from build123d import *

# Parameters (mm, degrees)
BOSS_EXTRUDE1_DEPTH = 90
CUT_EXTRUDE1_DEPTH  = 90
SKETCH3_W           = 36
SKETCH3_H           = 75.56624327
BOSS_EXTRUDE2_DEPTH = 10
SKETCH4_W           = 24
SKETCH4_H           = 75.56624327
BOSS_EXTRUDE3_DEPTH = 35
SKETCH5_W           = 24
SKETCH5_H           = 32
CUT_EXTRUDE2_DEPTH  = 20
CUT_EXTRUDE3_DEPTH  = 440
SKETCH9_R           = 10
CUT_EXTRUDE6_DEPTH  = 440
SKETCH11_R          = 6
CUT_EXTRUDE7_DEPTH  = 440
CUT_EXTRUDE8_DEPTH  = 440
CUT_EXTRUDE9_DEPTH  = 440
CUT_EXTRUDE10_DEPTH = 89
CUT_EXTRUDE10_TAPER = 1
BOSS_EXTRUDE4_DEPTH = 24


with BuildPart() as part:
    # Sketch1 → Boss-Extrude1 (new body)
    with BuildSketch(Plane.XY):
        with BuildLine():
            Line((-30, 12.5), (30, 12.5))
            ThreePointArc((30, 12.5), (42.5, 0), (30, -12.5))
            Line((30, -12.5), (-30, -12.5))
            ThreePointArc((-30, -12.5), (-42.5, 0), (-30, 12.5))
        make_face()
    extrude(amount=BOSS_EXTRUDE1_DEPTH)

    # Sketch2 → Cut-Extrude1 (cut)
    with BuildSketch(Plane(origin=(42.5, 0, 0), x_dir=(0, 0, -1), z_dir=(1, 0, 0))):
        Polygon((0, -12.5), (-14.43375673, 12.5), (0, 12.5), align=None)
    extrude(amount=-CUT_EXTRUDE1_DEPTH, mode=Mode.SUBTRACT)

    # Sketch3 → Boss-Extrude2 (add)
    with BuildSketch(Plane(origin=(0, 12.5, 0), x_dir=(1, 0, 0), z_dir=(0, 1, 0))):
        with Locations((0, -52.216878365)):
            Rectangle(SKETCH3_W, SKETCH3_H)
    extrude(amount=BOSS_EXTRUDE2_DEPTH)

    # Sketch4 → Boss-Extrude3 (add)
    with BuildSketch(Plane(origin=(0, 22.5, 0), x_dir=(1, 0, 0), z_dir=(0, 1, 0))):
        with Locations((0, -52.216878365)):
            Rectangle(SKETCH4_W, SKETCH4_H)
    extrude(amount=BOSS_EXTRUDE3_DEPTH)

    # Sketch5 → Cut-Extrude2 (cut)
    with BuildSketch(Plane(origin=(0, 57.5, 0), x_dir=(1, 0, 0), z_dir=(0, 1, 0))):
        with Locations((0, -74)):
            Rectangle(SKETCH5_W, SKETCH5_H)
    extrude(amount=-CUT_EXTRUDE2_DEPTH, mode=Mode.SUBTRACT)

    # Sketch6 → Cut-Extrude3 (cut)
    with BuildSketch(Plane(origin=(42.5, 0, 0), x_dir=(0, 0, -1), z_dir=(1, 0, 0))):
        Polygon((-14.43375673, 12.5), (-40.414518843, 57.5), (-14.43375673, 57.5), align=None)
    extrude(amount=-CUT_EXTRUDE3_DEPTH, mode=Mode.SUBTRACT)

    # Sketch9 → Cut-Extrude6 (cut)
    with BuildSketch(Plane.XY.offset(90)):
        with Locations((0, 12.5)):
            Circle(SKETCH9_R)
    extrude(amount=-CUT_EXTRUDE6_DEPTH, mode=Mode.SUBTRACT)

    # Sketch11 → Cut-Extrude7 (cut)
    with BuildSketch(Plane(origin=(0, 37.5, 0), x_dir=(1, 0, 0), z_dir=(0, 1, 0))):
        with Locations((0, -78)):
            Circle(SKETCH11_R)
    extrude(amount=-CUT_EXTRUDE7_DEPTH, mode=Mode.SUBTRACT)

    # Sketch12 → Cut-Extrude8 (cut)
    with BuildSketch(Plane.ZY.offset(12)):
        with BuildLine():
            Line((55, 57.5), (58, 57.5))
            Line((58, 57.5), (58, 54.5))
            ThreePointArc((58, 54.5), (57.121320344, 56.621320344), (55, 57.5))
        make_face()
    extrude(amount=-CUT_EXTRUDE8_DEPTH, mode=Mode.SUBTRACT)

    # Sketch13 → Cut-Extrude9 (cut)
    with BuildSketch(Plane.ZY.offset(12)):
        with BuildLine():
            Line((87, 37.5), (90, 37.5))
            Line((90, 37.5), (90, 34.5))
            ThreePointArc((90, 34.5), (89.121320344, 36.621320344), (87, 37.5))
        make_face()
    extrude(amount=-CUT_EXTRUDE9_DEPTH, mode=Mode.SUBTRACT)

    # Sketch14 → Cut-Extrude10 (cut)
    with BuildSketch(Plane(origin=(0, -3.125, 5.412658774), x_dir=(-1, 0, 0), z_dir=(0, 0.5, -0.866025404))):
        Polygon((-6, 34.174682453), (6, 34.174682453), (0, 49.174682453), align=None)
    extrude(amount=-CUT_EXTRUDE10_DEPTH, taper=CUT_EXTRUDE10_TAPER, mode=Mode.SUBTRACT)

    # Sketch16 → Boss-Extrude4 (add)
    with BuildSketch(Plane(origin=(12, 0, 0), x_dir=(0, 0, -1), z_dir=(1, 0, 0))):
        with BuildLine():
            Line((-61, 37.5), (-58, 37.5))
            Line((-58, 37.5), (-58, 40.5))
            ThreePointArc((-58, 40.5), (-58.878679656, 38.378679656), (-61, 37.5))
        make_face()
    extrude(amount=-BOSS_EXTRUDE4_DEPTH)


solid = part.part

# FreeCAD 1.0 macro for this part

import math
import FreeCAD as App
import Part
import Sketcher
Q = App.Units.Quantity

doc = App.newDocument("Part")
body = doc.addObject("PartDesign::Body", "Body")

sketch1 = body.newObject("Sketcher::SketchObject", "Sketch")
sketch1.AttachmentSupport = (doc.getObject("XY_Plane"), [""])
sketch1.MapMode = "FlatFace"
sketch1.addGeometry(Part.LineSegment(App.Vector(30, 12, 0), App.Vector(-30, 12, 0)), False)
sketch1.addGeometry(Part.ArcOfCircle(Part.Circle(App.Vector(-30, 0, 0), App.Vector(0, 0, 1), 12), math.radians(90), math.radians(270)), False)
sketch1.addGeometry(Part.LineSegment(App.Vector(-30, -12, 0), App.Vector(30, -12, 0)), False)
sketch1.addGeometry(Part.ArcOfCircle(Part.Circle(App.Vector(30, 0, 0), App.Vector(0, 0, 1), 12), math.radians(-90), math.radians(90)), False)
sketch1.addConstraint(Sketcher.Constraint("Tangent", 0, 2, 1, 1))
sketch1.addConstraint(Sketcher.Constraint("Tangent", 1, 2, 2, 1))
sketch1.addConstraint(Sketcher.Constraint("Tangent", 2, 2, 3, 1))
sketch1.addConstraint(Sketcher.Constraint("Tangent", 3, 2, 0, 1))
sketch1.addConstraint(Sketcher.Constraint("Horizontal", 0))
sketch1.addConstraint(Sketcher.Constraint("Horizontal", 2))
sketch1.addConstraint(Sketcher.Constraint("Symmetric", 1, 3, 3, 3, -1, 1))
sketch1.addConstraint(Sketcher.Constraint("Radius", 1, Q("12.5 mm")))
sketch1.addConstraint(Sketcher.Constraint("DistanceX", 0, 2, 0, 1, Q("60 mm")))
pad1 = body.newObject("PartDesign::Pad", "Pad")
pad1.Profile = sketch1
pad1.Length = 90

sketch2 = body.newObject("Sketcher::SketchObject", "Sketch001")
sketch2.AttachmentSupport = (doc.getObject("YZ_Plane"), [""])
sketch2.MapMode = "FlatFace"
sketch2.AttachmentOffset = App.Placement(App.Vector(0, 0, 42.5), App.Rotation())
sketch2.addGeometry(Part.LineSegment(App.Vector(12, 14, 0), App.Vector(-12, 0, 0)), False)
sketch2.addGeometry(Part.LineSegment(App.Vector(-12, 0, 0), App.Vector(12, 0, 0)), False)
sketch2.addGeometry(Part.LineSegment(App.Vector(12, 0, 0), App.Vector(12, 14, 0)), False)
sketch2.addConstraint(Sketcher.Constraint("Coincident", 0, 2, 1, 1))
sketch2.addConstraint(Sketcher.Constraint("Coincident", 1, 2, 2, 1))
sketch2.addConstraint(Sketcher.Constraint("Coincident", 2, 2, 0, 1))
sketch2.addConstraint(Sketcher.Constraint("Horizontal", 1))
sketch2.addConstraint(Sketcher.Constraint("Vertical", 2))
sketch2.addConstraint(Sketcher.Constraint("Symmetric", 0, 2, 1, 2, -1, 1))
sketch2.addConstraint(Sketcher.Constraint("DistanceX", 1, 1, 1, 2, Q("25 mm")))
sketch2.addConstraint(Sketcher.Constraint("Angle", 0, Q("-150 deg")))
pocket1 = body.newObject("PartDesign::Pocket", "Pocket")
pocket1.Profile = sketch2
pocket1.Length = 90

sketch3 = body.newObject("Sketcher::SketchObject", "Sketch002")
sketch3.AttachmentSupport = (doc.getObject("XZ_Plane"), [""])
sketch3.MapMode = "FlatFace"
sketch3.AttachmentOffset = App.Placement(App.Vector(0, 0, -12.5), App.Rotation())
sketch3.addGeometry(Part.LineSegment(App.Vector(-18, 14, 0), App.Vector(-18, 90, 0)), False)
sketch3.addGeometry(Part.LineSegment(App.Vector(-18, 90, 0), App.Vector(18, 90, 0)), False)
sketch3.addGeometry(Part.LineSegment(App.Vector(18, 90, 0), App.Vector(18, 14, 0)), False)
sketch3.addGeometry(Part.LineSegment(App.Vector(18, 14, 0), App.Vector(-18, 14, 0)), False)
sketch3.addConstraint(Sketcher.Constraint("Coincident", 0, 2, 1, 1))
sketch3.addConstraint(Sketcher.Constraint("Coincident", 1, 2, 2, 1))
sketch3.addConstraint(Sketcher.Constraint("Coincident", 2, 2, 3, 1))
sketch3.addConstraint(Sketcher.Constraint("Coincident", 3, 2, 0, 1))
sketch3.addConstraint(Sketcher.Constraint("Vertical", 0))
sketch3.addConstraint(Sketcher.Constraint("Horizontal", 1))
sketch3.addConstraint(Sketcher.Constraint("Vertical", 2))
sketch3.addConstraint(Sketcher.Constraint("Horizontal", 3))
sketch3.addConstraint(Sketcher.Constraint("DistanceX", 1, 1, 1, 2, Q("36 mm")))
sketch3.addConstraint(Sketcher.Constraint("DistanceX", 0, 2, -1, 1, Q("18 mm")))
sketch3.addConstraint(Sketcher.Constraint("DistanceY", -1, 1, 0, 2, Q("90 mm")))
sketch3.addConstraint(Sketcher.Constraint("DistanceY", 0, 1, 0, 2, Q("75.566243 mm")))
pad2 = body.newObject("PartDesign::Pad", "Pad001")
pad2.Profile = sketch3
pad2.Length = 10
pad2.Reversed = True

sketch4 = body.newObject("Sketcher::SketchObject", "Sketch003")
sketch4.AttachmentSupport = (doc.getObject("XZ_Plane"), [""])
sketch4.MapMode = "FlatFace"
sketch4.AttachmentOffset = App.Placement(App.Vector(0, 0, -22.5), App.Rotation())
sketch4.addGeometry(Part.LineSegment(App.Vector(-12, 14, 0), App.Vector(-12, 90, 0)), False)
sketch4.addGeometry(Part.LineSegment(App.Vector(-12, 90, 0), App.Vector(12, 90, 0)), False)
sketch4.addGeometry(Part.LineSegment(App.Vector(12, 90, 0), App.Vector(12, 14, 0)), False)
sketch4.addGeometry(Part.LineSegment(App.Vector(12, 14, 0), App.Vector(-12, 14, 0)), False)
sketch4.addConstraint(Sketcher.Constraint("Coincident", 0, 2, 1, 1))
sketch4.addConstraint(Sketcher.Constraint("Coincident", 1, 2, 2, 1))
sketch4.addConstraint(Sketcher.Constraint("Coincident", 2, 2, 3, 1))
sketch4.addConstraint(Sketcher.Constraint("Coincident", 3, 2, 0, 1))
sketch4.addConstraint(Sketcher.Constraint("Vertical", 0))
sketch4.addConstraint(Sketcher.Constraint("Horizontal", 1))
sketch4.addConstraint(Sketcher.Constraint("Vertical", 2))
sketch4.addConstraint(Sketcher.Constraint("Horizontal", 3))
sketch4.addConstraint(Sketcher.Constraint("DistanceX", 1, 1, 1, 2, Q("24 mm")))
sketch4.addConstraint(Sketcher.Constraint("DistanceX", 0, 2, -1, 1, Q("12 mm")))
sketch4.addConstraint(Sketcher.Constraint("DistanceY", -1, 1, 0, 2, Q("90 mm")))
sketch4.addConstraint(Sketcher.Constraint("DistanceY", 0, 1, 0, 2, Q("75.566243 mm")))
pad3 = body.newObject("PartDesign::Pad", "Pad002")
pad3.Profile = sketch4
pad3.Length = 35
pad3.Reversed = True

sketch5 = body.newObject("Sketcher::SketchObject", "Sketch004")
sketch5.AttachmentSupport = (doc.getObject("XZ_Plane"), [""])
sketch5.MapMode = "FlatFace"
sketch5.AttachmentOffset = App.Placement(App.Vector(0, 0, -57.5), App.Rotation())
sketch5.addGeometry(Part.LineSegment(App.Vector(-12, 58, 0), App.Vector(-12, 90, 0)), False)
sketch5.addGeometry(Part.LineSegment(App.Vector(-12, 90, 0), App.Vector(12, 90, 0)), False)
sketch5.addGeometry(Part.LineSegment(App.Vector(12, 90, 0), App.Vector(12, 58, 0)), False)
sketch5.addGeometry(Part.LineSegment(App.Vector(12, 58, 0), App.Vector(-12, 58, 0)), False)
sketch5.addConstraint(Sketcher.Constraint("Coincident", 0, 2, 1, 1))
sketch5.addConstraint(Sketcher.Constraint("Coincident", 1, 2, 2, 1))
sketch5.addConstraint(Sketcher.Constraint("Coincident", 2, 2, 3, 1))
sketch5.addConstraint(Sketcher.Constraint("Coincident", 3, 2, 0, 1))
sketch5.addConstraint(Sketcher.Constraint("Vertical", 0))
sketch5.addConstraint(Sketcher.Constraint("Horizontal", 1))
sketch5.addConstraint(Sketcher.Constraint("Vertical", 2))
sketch5.addConstraint(Sketcher.Constraint("Horizontal", 3))
sketch5.addConstraint(Sketcher.Constraint("DistanceX", 1, 1, 1, 2, Q("24 mm")))
sketch5.addConstraint(Sketcher.Constraint("DistanceY", 0, 1, 0, 2, Q("32 mm")))
sketch5.addConstraint(Sketcher.Constraint("DistanceX", 0, 2, -1, 1, Q("12 mm")))
sketch5.addConstraint(Sketcher.Constraint("DistanceY", -1, 1, 0, 2, Q("90 mm")))
pocket2 = body.newObject("PartDesign::Pocket", "Pocket001")
pocket2.Profile = sketch5
pocket2.Length = 20
pocket2.Reversed = True

sketch6 = body.newObject("Sketcher::SketchObject", "Sketch005")
sketch6.AttachmentSupport = (doc.getObject("YZ_Plane"), [""])
sketch6.MapMode = "FlatFace"
sketch6.AttachmentOffset = App.Placement(App.Vector(0, 0, 42.5), App.Rotation())
sketch6.addGeometry(Part.LineSegment(App.Vector(58, 40, 0), App.Vector(12, 14, 0)), False)
sketch6.addGeometry(Part.LineSegment(App.Vector(12, 14, 0), App.Vector(58, 14, 0)), False)
sketch6.addGeometry(Part.LineSegment(App.Vector(58, 14, 0), App.Vector(58, 40, 0)), False)
sketch6.addConstraint(Sketcher.Constraint("Coincident", 0, 2, 1, 1))
sketch6.addConstraint(Sketcher.Constraint("Coincident", 1, 2, 2, 1))
sketch6.addConstraint(Sketcher.Constraint("Coincident", 2, 2, 0, 1))
sketch6.addConstraint(Sketcher.Constraint("Horizontal", 1))
sketch6.addConstraint(Sketcher.Constraint("Vertical", 2))
sketch6.addConstraint(Sketcher.Constraint("DistanceX", 1, 1, 1, 2, Q("45 mm")))
sketch6.addConstraint(Sketcher.Constraint("Angle", 0, Q("-150 deg")))
sketch6.addConstraint(Sketcher.Constraint("DistanceX", -1, 1, 0, 2, Q("12.5 mm")))
sketch6.addConstraint(Sketcher.Constraint("DistanceY", -1, 1, 2, 2, Q("40.414519 mm")))
pocket3 = body.newObject("PartDesign::Pocket", "Pocket002")
pocket3.Profile = sketch6
pocket3.Length = 440

sketch7 = body.newObject("Sketcher::SketchObject", "Sketch006")
sketch7.AttachmentSupport = (doc.getObject("XY_Plane"), [""])
sketch7.MapMode = "FlatFace"
sketch7.AttachmentOffset = App.Placement(App.Vector(0, 0, 90), App.Rotation())
sketch7.addGeometry(Part.Circle(App.Vector(0, 12, 0), App.Vector(0, 0, 1), 10), False)
sketch7.addConstraint(Sketcher.Constraint("PointOnObject", 0, 3, -2))
sketch7.addConstraint(Sketcher.Constraint("Diameter", 0, Q("20 mm")))
sketch7.addConstraint(Sketcher.Constraint("DistanceY", -1, 1, 0, 3, Q("12.5 mm")))
pocket4 = body.newObject("PartDesign::Pocket", "Pocket003")
pocket4.Profile = sketch7
pocket4.Length = 440

sketch8 = body.newObject("Sketcher::SketchObject", "Sketch007")
sketch8.AttachmentSupport = (doc.getObject("XZ_Plane"), [""])
sketch8.MapMode = "FlatFace"
sketch8.AttachmentOffset = App.Placement(App.Vector(0, 0, -37.5), App.Rotation())
sketch8.addGeometry(Part.Circle(App.Vector(0, 78, 0), App.Vector(0, 0, 1), 6), False)
sketch8.addConstraint(Sketcher.Constraint("PointOnObject", 0, 3, -2))
sketch8.addConstraint(Sketcher.Constraint("Diameter", 0, Q("12 mm")))
sketch8.addConstraint(Sketcher.Constraint("DistanceY", -1, 1, 0, 3, Q("78 mm")))
pocket5 = body.newObject("PartDesign::Pocket", "Pocket004")
pocket5.Profile = sketch8
pocket5.Length = 440
pocket5.Reversed = True

sketch9 = body.newObject("Sketcher::SketchObject", "Sketch008")
sketch9.AttachmentSupport = (doc.getObject("YZ_Plane"), [""])
sketch9.MapMode = "FlatFace"
sketch9.AttachmentOffset = App.Placement(App.Vector(0, 0, -12), App.Rotation())
sketch9.addGeometry(Part.LineSegment(App.Vector(57.5, 58, 0), App.Vector(57.5, 55, 0)), False)
sketch9.addGeometry(Part.ArcOfCircle(Part.Circle(App.Vector(54.5, 55, 0), App.Vector(0, 0, 1), 3), math.radians(0), math.radians(90)), False)
sketch9.addGeometry(Part.LineSegment(App.Vector(54.5, 58, 0), App.Vector(57.5, 58, 0)), False)
sketch9.addConstraint(Sketcher.Constraint("Tangent", 0, 2, 1, 1))
sketch9.addConstraint(Sketcher.Constraint("Tangent", 1, 2, 2, 1))
sketch9.addConstraint(Sketcher.Constraint("Coincident", 2, 2, 0, 1))
sketch9.addConstraint(Sketcher.Constraint("Vertical", 0))
sketch9.addConstraint(Sketcher.Constraint("Horizontal", 2))
sketch9.addConstraint(Sketcher.Constraint("Radius", 1, Q("3 mm")))
sketch9.addConstraint(Sketcher.Constraint("DistanceY", -1, 1, 1, 3, Q("55 mm")))
sketch9.addConstraint(Sketcher.Constraint("DistanceX", -1, 1, 1, 3, Q("54.5 mm")))
pocket6 = body.newObject("PartDesign::Pocket", "Pocket005")
pocket6.Profile = sketch9
pocket6.Length = 440
pocket6.Reversed = True

sketch10 = body.newObject("Sketcher::SketchObject", "Sketch009")
sketch10.AttachmentSupport = (doc.getObject("YZ_Plane"), [""])
sketch10.MapMode = "FlatFace"
sketch10.AttachmentOffset = App.Placement(App.Vector(0, 0, -12), App.Rotation())
sketch10.addGeometry(Part.LineSegment(App.Vector(37.5, 90, 0), App.Vector(37.5, 87, 0)), False)
sketch10.addGeometry(Part.ArcOfCircle(Part.Circle(App.Vector(34.5, 87, 0), App.Vector(0, 0, 1), 3), math.radians(0), math.radians(90)), False)
sketch10.addGeometry(Part.LineSegment(App.Vector(34.5, 90, 0), App.Vector(37.5, 90, 0)), False)
sketch10.addConstraint(Sketcher.Constraint("Tangent", 0, 2, 1, 1))
sketch10.addConstraint(Sketcher.Constraint("Tangent", 1, 2, 2, 1))
sketch10.addConstraint(Sketcher.Constraint("Coincident", 2, 2, 0, 1))
sketch10.addConstraint(Sketcher.Constraint("Vertical", 0))
sketch10.addConstraint(Sketcher.Constraint("Horizontal", 2))
sketch10.addConstraint(Sketcher.Constraint("Radius", 1, Q("3 mm")))
sketch10.addConstraint(Sketcher.Constraint("DistanceY", -1, 1, 1, 3, Q("87 mm")))
sketch10.addConstraint(Sketcher.Constraint("DistanceX", -1, 1, 1, 3, Q("34.5 mm")))
pocket7 = body.newObject("PartDesign::Pocket", "Pocket006")
pocket7.Profile = sketch10
pocket7.Length = 440
pocket7.Reversed = True

sketch11 = body.newObject("Sketcher::SketchObject", "Sketch010")
sketch11.Placement = App.Placement(App.Vector(0, -3.125, 5.412659), App.Rotation(App.Vector(-1, 0, 0), App.Vector(0, 0.866025404, 0.5), App.Vector(0, 0.5, -0.866025404), "ZXY"))
sketch11.addGeometry(Part.LineSegment(App.Vector(-6, 34, 0), App.Vector(6, 34, 0)), False)
sketch11.addGeometry(Part.LineSegment(App.Vector(6, 34, 0), App.Vector(0, 49, 0)), False)
sketch11.addGeometry(Part.LineSegment(App.Vector(0, 49, 0), App.Vector(-6, 34, 0)), False)
sketch11.addConstraint(Sketcher.Constraint("Coincident", 0, 2, 1, 1))
sketch11.addConstraint(Sketcher.Constraint("Coincident", 1, 2, 2, 1))
sketch11.addConstraint(Sketcher.Constraint("Coincident", 2, 2, 0, 1))
sketch11.addConstraint(Sketcher.Constraint("Horizontal", 0))
sketch11.addConstraint(Sketcher.Constraint("PointOnObject", 1, 2, -2))
sketch11.addConstraint(Sketcher.Constraint("Equal", 1, 2))
sketch11.addConstraint(Sketcher.Constraint("DistanceX", 0, 1, 0, 2, Q("12 mm")))
sketch11.addConstraint(Sketcher.Constraint("DistanceY", 0, 2, 1, 2, Q("15 mm")))
sketch11.addConstraint(Sketcher.Constraint("DistanceY", -1, 1, 0, 2, Q("34.174682 mm")))
pocket8 = body.newObject("PartDesign::Pocket", "Pocket007")
pocket8.Profile = sketch11
pocket8.Length = 89
pocket8.TaperAngle = -1

sketch12 = body.newObject("Sketcher::SketchObject", "Sketch011")
sketch12.AttachmentSupport = (doc.getObject("YZ_Plane"), [""])
sketch12.MapMode = "FlatFace"
sketch12.AttachmentOffset = App.Placement(App.Vector(0, 0, 12), App.Rotation())
sketch12.addGeometry(Part.LineSegment(App.Vector(37.5, 61, 0), App.Vector(37.5, 58, 0)), False)
sketch12.addGeometry(Part.LineSegment(App.Vector(37.5, 58, 0), App.Vector(40.5, 58, 0)), False)
sketch12.addGeometry(Part.ArcOfCircle(Part.Circle(App.Vector(40.5, 61, 0), App.Vector(0, 0, 1), 3), math.radians(180), math.radians(270)), False)
sketch12.addConstraint(Sketcher.Constraint("Coincident", 0, 2, 1, 1))
sketch12.addConstraint(Sketcher.Constraint("Tangent", 1, 2, 2, 2))
sketch12.addConstraint(Sketcher.Constraint("Tangent", 2, 1, 0, 1))
sketch12.addConstraint(Sketcher.Constraint("Vertical", 0))
sketch12.addConstraint(Sketcher.Constraint("Horizontal", 1))
sketch12.addConstraint(Sketcher.Constraint("Radius", 2, Q("3 mm")))
sketch12.addConstraint(Sketcher.Constraint("DistanceY", -1, 1, 2, 3, Q("61 mm")))
sketch12.addConstraint(Sketcher.Constraint("DistanceX", -1, 1, 2, 3, Q("40.5 mm")))
pad4 = body.newObject("PartDesign::Pad", "Pad003")
pad4.Profile = sketch12
pad4.Length = 24
pad4.Reversed = True

doc.recompute()
